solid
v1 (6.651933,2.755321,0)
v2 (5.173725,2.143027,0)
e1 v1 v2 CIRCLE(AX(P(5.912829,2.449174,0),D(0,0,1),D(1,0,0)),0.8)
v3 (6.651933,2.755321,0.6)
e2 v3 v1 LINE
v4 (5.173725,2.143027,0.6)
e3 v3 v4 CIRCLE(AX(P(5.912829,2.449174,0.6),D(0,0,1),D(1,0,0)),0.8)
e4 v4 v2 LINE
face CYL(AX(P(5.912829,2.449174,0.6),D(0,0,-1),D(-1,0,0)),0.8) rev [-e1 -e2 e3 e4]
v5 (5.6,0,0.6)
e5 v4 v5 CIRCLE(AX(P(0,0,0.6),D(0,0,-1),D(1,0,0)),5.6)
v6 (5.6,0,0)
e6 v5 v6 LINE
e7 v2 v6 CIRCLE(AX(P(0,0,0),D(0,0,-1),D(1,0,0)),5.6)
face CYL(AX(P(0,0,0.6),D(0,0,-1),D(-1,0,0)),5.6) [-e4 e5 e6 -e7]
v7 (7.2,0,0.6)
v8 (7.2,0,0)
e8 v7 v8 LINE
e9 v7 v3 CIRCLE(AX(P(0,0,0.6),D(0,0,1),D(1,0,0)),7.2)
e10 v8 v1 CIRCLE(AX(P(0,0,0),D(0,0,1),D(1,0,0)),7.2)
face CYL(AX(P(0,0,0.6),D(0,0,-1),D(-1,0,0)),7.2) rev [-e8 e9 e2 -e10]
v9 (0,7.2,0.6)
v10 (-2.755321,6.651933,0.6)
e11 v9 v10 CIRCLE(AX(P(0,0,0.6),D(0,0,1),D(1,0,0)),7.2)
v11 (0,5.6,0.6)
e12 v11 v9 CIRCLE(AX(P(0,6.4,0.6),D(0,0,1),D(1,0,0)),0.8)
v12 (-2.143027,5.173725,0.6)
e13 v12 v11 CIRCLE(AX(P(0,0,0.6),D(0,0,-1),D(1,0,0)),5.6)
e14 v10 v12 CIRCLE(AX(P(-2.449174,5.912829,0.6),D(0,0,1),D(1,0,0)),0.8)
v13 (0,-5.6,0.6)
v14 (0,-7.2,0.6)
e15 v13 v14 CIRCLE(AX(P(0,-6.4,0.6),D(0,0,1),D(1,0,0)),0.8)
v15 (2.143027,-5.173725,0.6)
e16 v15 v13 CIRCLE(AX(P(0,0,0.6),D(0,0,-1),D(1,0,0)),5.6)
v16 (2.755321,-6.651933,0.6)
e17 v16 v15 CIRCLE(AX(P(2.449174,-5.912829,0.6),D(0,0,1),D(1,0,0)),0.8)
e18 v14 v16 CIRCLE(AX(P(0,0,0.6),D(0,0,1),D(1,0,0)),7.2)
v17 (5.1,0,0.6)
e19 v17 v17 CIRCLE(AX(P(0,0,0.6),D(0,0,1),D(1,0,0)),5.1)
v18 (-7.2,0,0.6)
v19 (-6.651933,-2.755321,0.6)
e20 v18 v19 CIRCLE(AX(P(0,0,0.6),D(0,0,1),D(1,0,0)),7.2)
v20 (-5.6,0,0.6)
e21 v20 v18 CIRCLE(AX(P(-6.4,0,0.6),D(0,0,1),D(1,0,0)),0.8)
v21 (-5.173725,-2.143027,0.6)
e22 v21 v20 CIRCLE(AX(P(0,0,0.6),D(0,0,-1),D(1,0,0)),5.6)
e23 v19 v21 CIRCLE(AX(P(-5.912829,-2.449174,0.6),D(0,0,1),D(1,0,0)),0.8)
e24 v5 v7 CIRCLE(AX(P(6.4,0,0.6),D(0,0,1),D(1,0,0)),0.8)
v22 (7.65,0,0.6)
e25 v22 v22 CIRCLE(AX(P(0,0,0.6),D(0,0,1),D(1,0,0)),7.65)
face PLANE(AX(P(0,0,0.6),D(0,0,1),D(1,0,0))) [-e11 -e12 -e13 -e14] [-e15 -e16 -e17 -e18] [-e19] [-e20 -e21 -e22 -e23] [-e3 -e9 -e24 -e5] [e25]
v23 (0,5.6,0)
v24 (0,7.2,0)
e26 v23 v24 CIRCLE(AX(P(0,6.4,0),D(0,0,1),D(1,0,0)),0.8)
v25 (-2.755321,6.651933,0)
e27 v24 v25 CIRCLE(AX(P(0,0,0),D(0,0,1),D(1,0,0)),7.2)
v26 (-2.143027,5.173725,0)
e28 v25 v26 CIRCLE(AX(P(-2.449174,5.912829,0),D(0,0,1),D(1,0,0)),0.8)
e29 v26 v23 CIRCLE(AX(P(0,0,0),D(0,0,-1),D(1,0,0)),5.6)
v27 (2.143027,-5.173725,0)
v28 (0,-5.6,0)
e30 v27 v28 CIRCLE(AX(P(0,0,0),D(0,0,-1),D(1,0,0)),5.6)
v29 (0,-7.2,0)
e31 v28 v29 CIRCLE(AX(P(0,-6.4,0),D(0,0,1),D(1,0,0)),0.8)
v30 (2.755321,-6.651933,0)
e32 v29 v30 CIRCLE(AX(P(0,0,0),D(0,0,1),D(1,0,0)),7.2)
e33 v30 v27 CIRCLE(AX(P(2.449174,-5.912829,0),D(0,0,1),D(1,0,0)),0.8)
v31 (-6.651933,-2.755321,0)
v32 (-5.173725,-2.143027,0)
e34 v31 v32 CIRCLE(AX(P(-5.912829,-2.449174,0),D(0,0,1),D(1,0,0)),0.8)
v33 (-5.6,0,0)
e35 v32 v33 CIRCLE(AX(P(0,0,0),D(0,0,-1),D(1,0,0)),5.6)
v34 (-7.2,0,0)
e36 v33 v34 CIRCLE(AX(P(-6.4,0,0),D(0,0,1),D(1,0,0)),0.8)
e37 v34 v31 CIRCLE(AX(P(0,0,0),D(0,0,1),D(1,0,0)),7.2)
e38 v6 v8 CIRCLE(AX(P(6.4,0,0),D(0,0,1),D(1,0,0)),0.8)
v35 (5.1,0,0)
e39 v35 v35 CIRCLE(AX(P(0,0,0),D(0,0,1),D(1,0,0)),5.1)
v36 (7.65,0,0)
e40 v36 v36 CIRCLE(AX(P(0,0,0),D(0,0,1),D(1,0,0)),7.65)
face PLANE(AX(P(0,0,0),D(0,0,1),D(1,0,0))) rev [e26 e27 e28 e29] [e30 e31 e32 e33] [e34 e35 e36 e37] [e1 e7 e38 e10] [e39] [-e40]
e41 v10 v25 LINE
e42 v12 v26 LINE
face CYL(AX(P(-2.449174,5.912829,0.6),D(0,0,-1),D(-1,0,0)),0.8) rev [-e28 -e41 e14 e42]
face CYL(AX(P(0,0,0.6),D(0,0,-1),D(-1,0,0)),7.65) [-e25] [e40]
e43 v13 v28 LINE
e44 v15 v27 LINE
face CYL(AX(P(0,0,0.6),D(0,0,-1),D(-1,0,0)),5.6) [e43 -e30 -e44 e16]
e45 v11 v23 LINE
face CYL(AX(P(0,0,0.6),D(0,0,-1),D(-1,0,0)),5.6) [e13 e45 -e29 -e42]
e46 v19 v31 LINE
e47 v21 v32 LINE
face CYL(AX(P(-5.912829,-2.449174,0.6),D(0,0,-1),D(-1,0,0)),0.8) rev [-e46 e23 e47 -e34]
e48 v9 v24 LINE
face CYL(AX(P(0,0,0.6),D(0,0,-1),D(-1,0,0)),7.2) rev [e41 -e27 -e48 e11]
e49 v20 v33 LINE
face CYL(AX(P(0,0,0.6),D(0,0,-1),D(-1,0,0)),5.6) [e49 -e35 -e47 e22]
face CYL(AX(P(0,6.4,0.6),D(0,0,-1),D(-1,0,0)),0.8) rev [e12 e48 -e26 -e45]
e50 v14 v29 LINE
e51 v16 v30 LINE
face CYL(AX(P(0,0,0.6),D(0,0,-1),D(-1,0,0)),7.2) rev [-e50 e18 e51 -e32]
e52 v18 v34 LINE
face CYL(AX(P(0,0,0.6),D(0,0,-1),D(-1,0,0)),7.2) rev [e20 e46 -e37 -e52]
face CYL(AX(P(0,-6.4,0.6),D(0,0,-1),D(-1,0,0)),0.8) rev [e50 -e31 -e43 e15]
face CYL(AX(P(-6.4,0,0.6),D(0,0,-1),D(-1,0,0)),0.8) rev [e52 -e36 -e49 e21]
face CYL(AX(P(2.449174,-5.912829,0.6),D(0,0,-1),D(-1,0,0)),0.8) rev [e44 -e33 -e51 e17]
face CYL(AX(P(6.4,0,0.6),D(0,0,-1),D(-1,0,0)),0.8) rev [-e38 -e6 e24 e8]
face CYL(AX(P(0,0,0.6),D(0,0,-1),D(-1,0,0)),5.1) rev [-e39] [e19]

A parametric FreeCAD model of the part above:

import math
import FreeCAD as App
import Part
import Sketcher

V = App.Vector
Q = App.Units.Quantity

doc = App.newDocument("Part")
body = doc.addObject("PartDesign::Body", "Body")

# Sketch on XY plane
sketch1 = body.newObject("Sketcher::SketchObject", "Sketch")
sketch1.AttachmentSupport = (doc.getObject("XY_Plane"), [""])
sketch1.MapMode = "FlatFace"
sketch1.addGeometry([
    Part.Circle(V(0, 0, 0), V(0, 0, 1), 7.65),  # 0
    Part.ArcOfCircle(Part.Circle(V(-5.912829, -2.449174, 0), V(0, 0, 1), 0.8), math.radians(-157.5), math.radians(22.5)),  # 1
    Part.ArcOfCircle(Part.Circle(V(0, 0, 0), V(0, 0, 1), 7.2), math.radians(180), math.radians(202.5)),  # 2
    Part.ArcOfCircle(Part.Circle(V(-6.4, 0, 0), V(0, 0, 1), 0.8), math.radians(0), math.radians(180)),  # 3
    Part.ArcOfCircle(Part.Circle(V(0, 0, 0), V(0, 0, 1), 5.6), math.radians(-180), math.radians(-157.5)),  # 4
    Part.ArcOfCircle(Part.Circle(V(2.449174, -5.912829, 0), V(0, 0, 1), 0.8), math.radians(-67.5), math.radians(112.5)),  # 5
    Part.ArcOfCircle(Part.Circle(V(0, 0, 0), V(0, 0, 1), 7.2), math.radians(-90), math.radians(-67.5)),  # 6
    Part.ArcOfCircle(Part.Circle(V(0, -6.4, 0), V(0, 0, 1), 0.8), math.radians(90), math.radians(270)),  # 7
    Part.ArcOfCircle(Part.Circle(V(0, 0, 0), V(0, 0, 1), 5.6), math.radians(-90), math.radians(-67.5)),  # 8
    Part.ArcOfCircle(Part.Circle(V(0, 6.4, 0), V(0, 0, 1), 0.8), math.radians(-90), math.radians(90)),  # 9
    Part.ArcOfCircle(Part.Circle(V(0, 0, 0), V(0, 0, 1), 5.6), math.radians(90), math.radians(112.5)),  # 10
    Part.ArcOfCircle(Part.Circle(V(-2.449174, 5.912829, 0), V(0, 0, 1), 0.8), math.radians(112.5), math.radians(292.5)),  # 11
    Part.ArcOfCircle(Part.Circle(V(0, 0, 0), V(0, 0, 1), 7.2), math.radians(90), math.radians(112.5)),  # 12
    Part.Circle(V(0, 0, 0), V(0, 0, 1), 5.1),  # 13
    Part.ArcOfCircle(Part.Circle(V(5.912829, 2.449174, 0), V(0, 0, 1), 0.8), math.radians(22.5), math.radians(202.5)),  # 14
    Part.ArcOfCircle(Part.Circle(V(0, 0, 0), V(0, 0, 1), 7.2), math.radians(0), math.radians(22.5)),  # 15
    Part.ArcOfCircle(Part.Circle(V(6.4, 0, 0), V(0, 0, 1), 0.8), math.radians(180), math.radians(360)),  # 16
    Part.ArcOfCircle(Part.Circle(V(0, 0, 0), V(0, 0, 1), 5.6), math.radians(0), math.radians(22.5)),  # 17
], False)
sketch1.addConstraint([
    Sketcher.Constraint("Tangent", 1, 1, 2, 2),
    Sketcher.Constraint("Tangent", 2, 1, 3, 2),
    Sketcher.Constraint("Tangent", 3, 1, 4, 1),
    Sketcher.Constraint("Tangent", 4, 2, 1, 2),
    Sketcher.Constraint("Tangent", 5, 1, 6, 2),
    Sketcher.Constraint("Tangent", 6, 1, 7, 2),
    Sketcher.Constraint("Tangent", 7, 1, 8, 1),
    Sketcher.Constraint("Tangent", 8, 2, 5, 2),
    Sketcher.Constraint("Tangent", 9, 1, 10, 1),
    Sketcher.Constraint("Tangent", 10, 2, 11, 2),
    Sketcher.Constraint("Tangent", 11, 1, 12, 2),
    Sketcher.Constraint("Tangent", 12, 1, 9, 2),
    Sketcher.Constraint("Tangent", 14, 1, 15, 2),
    Sketcher.Constraint("Tangent", 15, 1, 16, 2),
    Sketcher.Constraint("Tangent", 16, 1, 17, 1),
    Sketcher.Constraint("Tangent", 17, 2, 14, 2),
    Sketcher.Constraint("Coincident", 0, 3, -1, 1),
    Sketcher.Constraint("Coincident", 2, 3, -1, 1),
    Sketcher.Constraint("Coincident", 4, 3, -1, 1),
    Sketcher.Constraint("Coincident", 6, 3, -1, 1),
    Sketcher.Constraint("Coincident", 8, 3, -1, 1),
    Sketcher.Constraint("Coincident", 10, 3, -1, 1),
    Sketcher.Constraint("Coincident", 12, 3, -1, 1),
    Sketcher.Constraint("Coincident", 13, 3, -1, 1),
    Sketcher.Constraint("Coincident", 15, 3, -1, 1),
    Sketcher.Constraint("Coincident", 17, 3, -1, 1),
    Sketcher.Constraint("Equal", 3, 5),
    Sketcher.Constraint("Equal", 2, 6),
    Sketcher.Constraint("Equal", 7, 9),
    Sketcher.Constraint("Equal", 8, 10),
    Sketcher.Constraint("Equal", 11, 14),
    Sketcher.Constraint("Equal", 12, 15),
    Sketcher.Constraint("PointOnObject", 3, 3, -1),
    Sketcher.Constraint("PointOnObject", 7, 3, -2),
    Sketcher.Constraint("PointOnObject", 9, 3, -2),
    Sketcher.Constraint("PointOnObject", 16, 3, -1),
    Sketcher.Constraint("Diameter", 0, Q("15.3 mm")),
    Sketcher.Constraint("Diameter", 13, Q("10.2 mm")),
    Sketcher.Constraint("Radius", 1, Q("0.8 mm")),
    Sketcher.Constraint("Radius", 2, Q("7.2 mm")),
    Sketcher.Constraint("DistanceX", 1, 3, -1, 1, Q("5.912829 mm")),
    Sketcher.Constraint("DistanceY", 5, 3, -1, 1, Q("5.912829 mm")),
    Sketcher.Constraint("DistanceY", -1, 1, 11, 3, Q("5.912829 mm")),
    Sketcher.Constraint("DistanceX", -1, 1, 14, 3, Q("5.912829 mm")),
])
pad1 = body.newObject("PartDesign::Pad", "Pad")
pad1.Profile = sketch1
pad1.Length = 0.6

doc.recompute()
